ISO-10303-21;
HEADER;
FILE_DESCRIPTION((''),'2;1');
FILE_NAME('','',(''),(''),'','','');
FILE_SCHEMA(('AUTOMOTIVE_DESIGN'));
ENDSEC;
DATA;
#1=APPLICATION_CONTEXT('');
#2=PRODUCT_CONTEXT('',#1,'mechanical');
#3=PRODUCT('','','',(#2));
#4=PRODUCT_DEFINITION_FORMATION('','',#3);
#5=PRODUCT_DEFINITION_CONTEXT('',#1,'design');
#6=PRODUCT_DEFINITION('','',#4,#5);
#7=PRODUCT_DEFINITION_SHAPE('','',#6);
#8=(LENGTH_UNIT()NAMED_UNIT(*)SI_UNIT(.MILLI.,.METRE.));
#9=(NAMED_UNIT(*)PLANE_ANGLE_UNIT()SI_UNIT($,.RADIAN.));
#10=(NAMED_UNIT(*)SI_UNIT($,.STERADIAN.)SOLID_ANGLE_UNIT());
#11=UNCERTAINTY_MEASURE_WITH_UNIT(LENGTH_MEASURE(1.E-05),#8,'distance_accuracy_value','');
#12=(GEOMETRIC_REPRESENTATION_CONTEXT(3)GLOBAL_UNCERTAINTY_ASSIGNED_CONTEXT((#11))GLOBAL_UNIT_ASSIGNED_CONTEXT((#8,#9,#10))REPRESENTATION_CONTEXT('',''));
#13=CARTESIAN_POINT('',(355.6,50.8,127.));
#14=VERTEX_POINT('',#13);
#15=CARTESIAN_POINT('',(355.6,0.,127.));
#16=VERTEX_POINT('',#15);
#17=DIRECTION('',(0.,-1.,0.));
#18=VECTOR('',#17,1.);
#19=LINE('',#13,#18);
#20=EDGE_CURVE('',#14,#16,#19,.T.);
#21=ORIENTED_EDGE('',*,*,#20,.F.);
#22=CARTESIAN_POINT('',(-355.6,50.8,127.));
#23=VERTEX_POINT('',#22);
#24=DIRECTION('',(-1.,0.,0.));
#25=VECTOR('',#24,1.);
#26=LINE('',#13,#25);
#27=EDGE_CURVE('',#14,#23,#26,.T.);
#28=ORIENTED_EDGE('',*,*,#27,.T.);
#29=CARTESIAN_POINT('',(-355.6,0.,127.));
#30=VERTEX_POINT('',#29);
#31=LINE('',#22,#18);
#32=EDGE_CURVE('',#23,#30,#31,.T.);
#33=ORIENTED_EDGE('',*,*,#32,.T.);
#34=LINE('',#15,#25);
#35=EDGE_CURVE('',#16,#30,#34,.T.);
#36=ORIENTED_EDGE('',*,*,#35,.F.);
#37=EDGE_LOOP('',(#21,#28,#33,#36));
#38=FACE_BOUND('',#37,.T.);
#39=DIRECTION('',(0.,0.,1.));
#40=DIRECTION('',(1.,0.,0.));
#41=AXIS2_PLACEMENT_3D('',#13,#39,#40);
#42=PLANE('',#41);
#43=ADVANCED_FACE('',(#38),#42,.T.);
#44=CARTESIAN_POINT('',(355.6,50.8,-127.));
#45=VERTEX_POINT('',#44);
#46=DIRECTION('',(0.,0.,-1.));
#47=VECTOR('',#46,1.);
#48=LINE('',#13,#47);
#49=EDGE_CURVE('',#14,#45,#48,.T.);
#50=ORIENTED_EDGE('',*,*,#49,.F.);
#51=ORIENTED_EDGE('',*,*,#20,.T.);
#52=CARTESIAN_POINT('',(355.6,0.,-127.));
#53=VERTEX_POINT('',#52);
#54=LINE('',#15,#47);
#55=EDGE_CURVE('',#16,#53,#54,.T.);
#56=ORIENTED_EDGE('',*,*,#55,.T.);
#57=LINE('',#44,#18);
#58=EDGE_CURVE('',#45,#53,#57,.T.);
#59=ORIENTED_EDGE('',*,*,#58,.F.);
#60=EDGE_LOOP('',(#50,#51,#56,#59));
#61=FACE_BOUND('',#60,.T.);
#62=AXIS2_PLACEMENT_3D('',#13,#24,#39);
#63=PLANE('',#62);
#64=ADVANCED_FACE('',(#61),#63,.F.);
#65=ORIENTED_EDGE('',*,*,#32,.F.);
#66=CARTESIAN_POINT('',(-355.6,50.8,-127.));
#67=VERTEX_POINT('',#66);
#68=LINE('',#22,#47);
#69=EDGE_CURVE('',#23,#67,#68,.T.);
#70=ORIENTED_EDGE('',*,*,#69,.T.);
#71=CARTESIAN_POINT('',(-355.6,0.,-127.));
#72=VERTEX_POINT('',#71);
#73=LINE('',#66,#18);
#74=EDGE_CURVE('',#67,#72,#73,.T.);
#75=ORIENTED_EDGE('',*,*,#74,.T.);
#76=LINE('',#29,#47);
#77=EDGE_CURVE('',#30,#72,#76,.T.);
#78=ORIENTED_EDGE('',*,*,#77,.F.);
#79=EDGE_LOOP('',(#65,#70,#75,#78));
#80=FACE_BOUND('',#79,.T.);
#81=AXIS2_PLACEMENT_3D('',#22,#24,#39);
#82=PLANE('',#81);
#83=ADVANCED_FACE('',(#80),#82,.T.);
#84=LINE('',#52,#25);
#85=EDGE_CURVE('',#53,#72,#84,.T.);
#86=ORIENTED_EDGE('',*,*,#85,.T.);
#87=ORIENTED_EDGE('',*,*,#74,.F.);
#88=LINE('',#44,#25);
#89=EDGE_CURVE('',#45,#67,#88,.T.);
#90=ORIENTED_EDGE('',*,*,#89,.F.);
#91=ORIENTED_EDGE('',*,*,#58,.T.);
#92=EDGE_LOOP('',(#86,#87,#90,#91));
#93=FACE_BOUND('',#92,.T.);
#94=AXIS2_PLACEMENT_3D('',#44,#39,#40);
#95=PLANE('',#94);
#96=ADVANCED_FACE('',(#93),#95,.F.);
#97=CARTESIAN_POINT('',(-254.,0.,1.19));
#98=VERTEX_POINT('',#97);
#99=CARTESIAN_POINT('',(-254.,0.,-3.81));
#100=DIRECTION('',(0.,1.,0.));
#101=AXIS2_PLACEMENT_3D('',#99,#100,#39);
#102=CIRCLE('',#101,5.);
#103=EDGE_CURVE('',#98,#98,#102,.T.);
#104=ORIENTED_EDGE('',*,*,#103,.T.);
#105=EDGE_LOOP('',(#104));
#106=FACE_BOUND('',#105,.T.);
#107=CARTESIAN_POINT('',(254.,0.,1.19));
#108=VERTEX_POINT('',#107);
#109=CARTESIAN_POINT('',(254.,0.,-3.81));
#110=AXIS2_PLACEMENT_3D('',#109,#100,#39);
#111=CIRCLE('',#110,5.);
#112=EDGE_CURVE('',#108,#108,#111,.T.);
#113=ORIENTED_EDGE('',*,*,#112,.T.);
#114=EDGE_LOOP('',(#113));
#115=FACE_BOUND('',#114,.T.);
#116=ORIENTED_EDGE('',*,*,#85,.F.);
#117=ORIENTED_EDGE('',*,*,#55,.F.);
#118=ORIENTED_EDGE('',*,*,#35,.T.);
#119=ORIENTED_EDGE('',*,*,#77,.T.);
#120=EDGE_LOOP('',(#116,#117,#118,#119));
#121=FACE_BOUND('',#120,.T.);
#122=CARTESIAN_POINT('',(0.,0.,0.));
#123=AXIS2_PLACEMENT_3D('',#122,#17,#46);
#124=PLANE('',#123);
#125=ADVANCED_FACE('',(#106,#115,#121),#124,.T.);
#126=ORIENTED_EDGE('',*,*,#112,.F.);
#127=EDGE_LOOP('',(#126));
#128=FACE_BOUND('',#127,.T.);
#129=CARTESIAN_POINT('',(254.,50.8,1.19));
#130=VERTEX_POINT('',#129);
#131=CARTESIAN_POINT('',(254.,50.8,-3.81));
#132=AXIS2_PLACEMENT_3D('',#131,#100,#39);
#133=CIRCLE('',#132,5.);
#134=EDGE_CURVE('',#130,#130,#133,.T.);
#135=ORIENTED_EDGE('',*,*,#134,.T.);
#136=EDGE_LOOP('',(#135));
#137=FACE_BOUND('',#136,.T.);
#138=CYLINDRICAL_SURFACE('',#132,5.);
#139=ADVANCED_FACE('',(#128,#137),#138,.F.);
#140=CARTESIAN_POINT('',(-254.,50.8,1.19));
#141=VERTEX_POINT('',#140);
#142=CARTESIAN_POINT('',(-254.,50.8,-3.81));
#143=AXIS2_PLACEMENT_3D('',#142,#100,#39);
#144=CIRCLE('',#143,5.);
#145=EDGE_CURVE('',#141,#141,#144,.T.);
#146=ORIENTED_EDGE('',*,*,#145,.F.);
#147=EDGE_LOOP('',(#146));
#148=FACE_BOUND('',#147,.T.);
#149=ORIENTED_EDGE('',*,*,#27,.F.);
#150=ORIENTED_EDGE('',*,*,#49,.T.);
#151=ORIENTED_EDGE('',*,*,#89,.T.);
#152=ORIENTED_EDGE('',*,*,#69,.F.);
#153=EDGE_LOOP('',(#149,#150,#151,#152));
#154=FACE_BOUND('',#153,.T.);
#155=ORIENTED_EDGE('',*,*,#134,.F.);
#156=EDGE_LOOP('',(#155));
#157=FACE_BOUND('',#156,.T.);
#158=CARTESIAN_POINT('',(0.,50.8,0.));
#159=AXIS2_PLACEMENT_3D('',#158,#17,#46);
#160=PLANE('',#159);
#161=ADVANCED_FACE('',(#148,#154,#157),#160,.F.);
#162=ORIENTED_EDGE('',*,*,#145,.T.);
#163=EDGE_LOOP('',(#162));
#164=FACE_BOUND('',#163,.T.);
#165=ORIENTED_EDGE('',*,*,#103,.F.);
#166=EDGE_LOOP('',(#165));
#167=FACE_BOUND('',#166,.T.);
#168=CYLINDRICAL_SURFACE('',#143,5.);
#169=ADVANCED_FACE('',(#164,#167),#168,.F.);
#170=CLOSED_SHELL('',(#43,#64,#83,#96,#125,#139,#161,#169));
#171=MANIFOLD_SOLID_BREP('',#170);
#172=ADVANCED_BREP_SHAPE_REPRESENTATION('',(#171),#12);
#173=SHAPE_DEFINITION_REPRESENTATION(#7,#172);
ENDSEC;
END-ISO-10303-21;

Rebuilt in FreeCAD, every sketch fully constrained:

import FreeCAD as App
import Part
import Sketcher
from FreeCAD import Vector
Q = App.Units.Quantity


def add_polygon(sketch, points):
    """Adds a closed chain of lines whose ends are joined by coincident constraints."""
    first, n = sketch.GeometryCount, len(points)
    for a, b in zip(points, points[1:] + points[:1]):
        sketch.addGeometry(Part.LineSegment(App.Vector(*a, 0), App.Vector(*b, 0)), False)
    for i in range(n):
        sketch.addConstraint(Sketcher.Constraint("Coincident", first + i, 2, first + (i + 1) % n, 1))

doc = App.newDocument("Part")
body = doc.addObject("PartDesign::Body", "Body")

sketch1 = doc.addObject("Sketcher::SketchObject", "Sketch")
body.addObject(sketch1)
sketch1.AttachmentSupport = (doc.XZ_Plane, [""])
sketch1.MapMode = "FlatFace"
add_polygon(sketch1, [(-355.6, -127), (-355.6, 127), (355.6, 127), (355.6, -127)])
sketch1.addConstraint([
    Sketcher.Constraint("Vertical", 0),
    Sketcher.Constraint("Horizontal", 1),
    Sketcher.Constraint("Vertical", 2),
    Sketcher.Constraint("Horizontal", 3),
    Sketcher.Constraint("Symmetric", 0, 2, 2, 2, -1, 1),
    Sketcher.Constraint("DistanceX", 1, 1, 1, 2, Q("28 in")),
    Sketcher.Constraint("DistanceY", 0, 1, 0, 2, Q("10 in")),
])
pad1 = doc.addObject("PartDesign::Pad", "Pad")
body.addObject(pad1)
pad1.Profile = sketch1
pad1.Length = Q("2 in")
pad1.Reversed = True

sketch2 = doc.addObject("Sketcher::SketchObject", "Sketch001")
body.addObject(sketch2)
sketch2.AttachmentSupport = (doc.XZ_Plane, [""])
sketch2.MapMode = "FlatFace"
sketch2.AttachmentOffset = App.Placement(Vector(0, 0, -2 * 25.4), App.Rotation())
sketch2.addGeometry([
    Part.Circle(Vector(-254, -3.81, 0), Vector(0, 0, 1), 5),
    Part.Circle(Vector(254, -3.81, 0), Vector(0, 0, 1), 5),
], False)
sketch2.addConstraint([
    Sketcher.Constraint("Equal", 0, 1),
    Sketcher.Constraint("Symmetric", 0, 3, 1, 3, -2),
    Sketcher.Constraint("DistanceX", 0, 3, -1, 1, Q("10 in")),
    Sketcher.Constraint("Diameter", 0, Q("10 mm")),
    Sketcher.Constraint("DistanceY", 0, 3, -1, 1, Q("0.15 in")),
])
doc.recompute()
hole = doc.addObject("PartDesign::Hole", "Hole")
body.addObject(hole)
hole.Profile = sketch2
hole.ThreadType = "None"
hole.Diameter = 10
hole.DepthType = "ThroughAll"
hole.Reversed = True

doc.recompute()
